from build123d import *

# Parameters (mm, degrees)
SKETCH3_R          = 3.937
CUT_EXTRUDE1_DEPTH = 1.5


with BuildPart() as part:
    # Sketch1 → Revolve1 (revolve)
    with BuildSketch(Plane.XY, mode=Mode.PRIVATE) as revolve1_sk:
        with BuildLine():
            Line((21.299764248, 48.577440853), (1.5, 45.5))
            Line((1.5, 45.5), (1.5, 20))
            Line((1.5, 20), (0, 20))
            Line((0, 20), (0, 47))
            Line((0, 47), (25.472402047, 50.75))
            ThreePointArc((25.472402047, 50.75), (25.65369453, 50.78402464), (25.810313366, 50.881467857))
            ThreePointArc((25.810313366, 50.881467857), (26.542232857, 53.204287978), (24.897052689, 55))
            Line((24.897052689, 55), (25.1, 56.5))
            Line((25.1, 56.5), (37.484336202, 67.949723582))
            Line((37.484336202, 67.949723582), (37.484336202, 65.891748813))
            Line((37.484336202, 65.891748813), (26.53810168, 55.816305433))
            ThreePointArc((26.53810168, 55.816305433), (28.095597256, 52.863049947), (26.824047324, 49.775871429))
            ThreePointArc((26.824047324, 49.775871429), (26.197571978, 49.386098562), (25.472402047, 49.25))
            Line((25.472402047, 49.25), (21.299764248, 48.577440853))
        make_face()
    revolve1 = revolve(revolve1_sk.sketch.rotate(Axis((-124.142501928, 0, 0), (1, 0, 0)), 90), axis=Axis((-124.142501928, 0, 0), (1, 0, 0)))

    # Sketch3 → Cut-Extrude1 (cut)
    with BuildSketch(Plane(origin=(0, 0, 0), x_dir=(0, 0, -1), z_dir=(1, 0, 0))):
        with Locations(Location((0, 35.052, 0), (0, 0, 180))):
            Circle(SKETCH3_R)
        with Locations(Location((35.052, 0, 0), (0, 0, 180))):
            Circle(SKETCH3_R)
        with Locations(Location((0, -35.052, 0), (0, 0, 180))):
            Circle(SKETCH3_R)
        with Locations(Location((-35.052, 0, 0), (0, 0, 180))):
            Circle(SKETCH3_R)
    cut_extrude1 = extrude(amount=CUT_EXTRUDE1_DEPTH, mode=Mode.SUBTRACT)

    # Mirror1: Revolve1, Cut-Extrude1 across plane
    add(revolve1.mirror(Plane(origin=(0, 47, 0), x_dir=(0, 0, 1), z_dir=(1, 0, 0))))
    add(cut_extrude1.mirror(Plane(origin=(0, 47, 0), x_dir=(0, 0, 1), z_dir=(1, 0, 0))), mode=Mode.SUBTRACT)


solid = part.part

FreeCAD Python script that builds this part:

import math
import FreeCAD as App
import Part
import Sketcher
from FreeCAD import Vector

doc = App.newDocument("Part")
params = doc.addObject("Spreadsheet::Sheet", "Params")
for row, (alias, value) in enumerate([
    ("sketch1_radius", "2 mm"),
    ("sketch1_radius2", "0.5 mm"),
    ("sketch1_height", "27 mm"),
    ("sketch1_width", "1.5 mm"),
    ("sketch1_height2", "25.5 mm"),
    ("revolution_angle", "360 deg"),
    ("pocket1_length", "1.5 mm"),
], start=1):
    params.set(f"A{row}", alias)
    params.set(f"B{row}", "=" + value)
    params.setAlias(f"B{row}", alias)

body = doc.addObject("PartDesign::Body", "Body")

sketch1 = doc.addObject("Sketcher::SketchObject", "Sketch")
body.addObject(sketch1)
sketch1.AttachmentSupport = (doc.XY_Plane, [""])
sketch1.MapMode = "FlatFace"
sketch1.addGeometry(Part.LineSegment(Vector(1.5, 45.5, 0), Vector(21.3, 48.58, 0)), False)
sketch1.addGeometry(Part.LineSegment(Vector(21.3, 48.58, 0), Vector(25.47, 49.25, 0)), False)
sketch1.addGeometry(Part.ArcOfCircle(Part.Circle(Vector(25.47, 51.25, 0), Vector(0, 0, 1), 2), math.radians(-90), math.radians(-47)), False)
sketch1.addGeometry(Part.ArcOfCircle(Part.Circle(Vector(24.16, 52.68, 0), Vector(0, 0, 1), 3.94), math.radians(-47), math.radians(53)), False)
sketch1.addGeometry(Part.LineSegment(Vector(26.54, 55.82, 0), Vector(37.48, 65.89, 0)), False)
sketch1.addGeometry(Part.LineSegment(Vector(37.48, 65.89, 0), Vector(37.48, 67.95, 0)), False)
sketch1.addGeometry(Part.LineSegment(Vector(37.48, 67.95, 0), Vector(25.1, 56.5, 0)), False)
sketch1.addGeometry(Part.LineSegment(Vector(25.1, 56.5, 0), Vector(24.9, 55, 0)), False)
sketch1.addGeometry(Part.ArcOfCircle(Part.Circle(Vector(24.16, 52.68, 0), Vector(0, 0, 1), 2.44), math.radians(-47), math.radians(72)), False)
sketch1.addGeometry(Part.ArcOfCircle(Part.Circle(Vector(25.47, 51.25, 0), Vector(0, 0, 1), 0.5), math.radians(-90), math.radians(-47)), False)
sketch1.addGeometry(Part.LineSegment(Vector(25.47, 50.75, 0), Vector(0, 47, 0)), False)
sketch1.addGeometry(Part.LineSegment(Vector(0, 47, 0), Vector(0, 20, 0)), False)
sketch1.addGeometry(Part.LineSegment(Vector(0, 20, 0), Vector(1.5, 20, 0)), False)
sketch1.addGeometry(Part.LineSegment(Vector(1.5, 20, 0), Vector(1.5, 45.5, 0)), False)
sketch1.addConstraint(Sketcher.Constraint("Coincident", 0, 2, 1, 1))
sketch1.addConstraint(Sketcher.Constraint("Coincident", 1, 2, 2, 1))
sketch1.addConstraint(Sketcher.Constraint("Tangent", 2, 2, 3, 1))
sketch1.addConstraint(Sketcher.Constraint("Coincident", 3, 2, 4, 1))
sketch1.addConstraint(Sketcher.Constraint("Coincident", 4, 2, 5, 1))
sketch1.addConstraint(Sketcher.Constraint("Coincident", 5, 2, 6, 1))
sketch1.addConstraint(Sketcher.Constraint("Coincident", 6, 2, 7, 1))
sketch1.addConstraint(Sketcher.Constraint("Coincident", 7, 2, 8, 2))
sketch1.addConstraint(Sketcher.Constraint("Tangent", 8, 1, 9, 2))
sketch1.addConstraint(Sketcher.Constraint("Coincident", 9, 1, 10, 1))
sketch1.addConstraint(Sketcher.Constraint("Coincident", 10, 2, 11, 1))
sketch1.addConstraint(Sketcher.Constraint("Coincident", 11, 2, 12, 1))
sketch1.addConstraint(Sketcher.Constraint("Coincident", 12, 2, 13, 1))
sketch1.addConstraint(Sketcher.Constraint("Coincident", 13, 2, 0, 1))
sketch1.addConstraint(Sketcher.Constraint("Vertical", 5))
sketch1.addConstraint(Sketcher.Constraint("Vertical", 11))
sketch1.addConstraint(Sketcher.Constraint("Horizontal", 12))
sketch1.addConstraint(Sketcher.Constraint("Vertical", 13))
sketch1.addConstraint(Sketcher.Constraint("Coincident", 8, 3, 3, 3))
sketch1.addConstraint(Sketcher.Constraint("Coincident", 9, 3, 2, 3))
sketch1.addConstraint(Sketcher.Constraint("PointOnObject", 10, 2, -2))
sketch1.addConstraint(Sketcher.Constraint("Vertical", 9, 3, 1, 2))
sketch1.addConstraint(Sketcher.Constraint("Vertical", 1, 2, 9, 1))
sketch1.addConstraint(Sketcher.Constraint("Radius", 2, 2.0))
sketch1.addConstraint(Sketcher.Constraint("Radius", 9, 0.5))
sketch1.addConstraint(Sketcher.Constraint("DistanceY", 11, 2, 11, 1, 27.0))
sketch1.addConstraint(Sketcher.Constraint("DistanceX", 12, 1, 12, 2, 1.5))
sketch1.addConstraint(Sketcher.Constraint("DistanceY", 13, 1, 13, 2, 25.5))
sketch1.addConstraint(Sketcher.Constraint("DistanceY", -1, 1, 7, 2, 55.0))
sketch1.addConstraint(Sketcher.Constraint("DistanceY", -1, 1, 10, 2, 47.0))
sketch1.addConstraint(Sketcher.Constraint("DistanceX", -1, 1, 6, 2, 25.1))
sketch1.addConstraint(Sketcher.Constraint("DistanceY", -1, 1, 6, 2, 56.5))
sketch1.addConstraint(Sketcher.Constraint("DistanceY", -1, 1, 2, 3, 51.25))
sketch1.addConstraint(Sketcher.Constraint("Radius", 3, 3.935971))
sketch1.addConstraint(Sketcher.Constraint("DistanceX", -1, 1, 3, 2, 26.538102))
sketch1.addConstraint(Sketcher.Constraint("DistanceX", 2, 3, 3, 2, 1.0657))
sketch1.addConstraint(Sketcher.Constraint("Distance", 4, 14.877319))
sketch1.addConstraint(Sketcher.Constraint("DistanceY", 5, 1, 5, 2, 2.057975))
sketch1.addConstraint(Sketcher.Constraint("DistanceX", -1, 1, 3, 3, 24.164029))
sketch1.addConstraint(Sketcher.Constraint("DistanceY", -1, 1, 0, 2, 48.577441))
sketch1.addConstraint(Sketcher.Constraint("DistanceY", -1, 1, 4, 2, 65.891749))
sketch1.addConstraint(Sketcher.Constraint("Distance", 0, 20.037498))
sketch1.setExpression("Constraints[23]", "Params.sketch1_radius")
sketch1.setExpression("Constraints[24]", "Params.sketch1_radius2")
sketch1.setExpression("Constraints[25]", "Params.sketch1_height")
sketch1.setExpression("Constraints[26]", "Params.sketch1_width")
sketch1.setExpression("Constraints[27]", "Params.sketch1_height2")
revolution = doc.addObject("PartDesign::Revolution", "Revolution")
body.addObject(revolution)
revolution.Profile = sketch1
revolution.ReferenceAxis = (sketch1, ["H_Axis"])
revolution.setExpression("Angle", "Params.revolution_angle")

sketch2 = doc.addObject("Sketcher::SketchObject", "Sketch001")
body.addObject(sketch2)
sketch2.AttachmentSupport = (doc.YZ_Plane, [""])
sketch2.MapMode = "FlatFace"
sketch2.addGeometry(Part.Circle(Vector(35.1, 0, 0), Vector(0, 0, 1), 3.9), False)
sketch2.addGeometry(Part.Circle(Vector(0, -35.1, 0), Vector(0, 0, 1), 3.9), False)
sketch2.addGeometry(Part.Circle(Vector(-35.1, 0, 0), Vector(0, 0, 1), 3.9), False)
sketch2.addGeometry(Part.Circle(Vector(0, 35.1, 0), Vector(0, 0, 1), 3.9), False)
sketch2.addConstraint(Sketcher.Constraint("Equal", 0, 1))
sketch2.addConstraint(Sketcher.Constraint("Equal", 1, 2))
sketch2.addConstraint(Sketcher.Constraint("Equal", 2, 3))
sketch2.addConstraint(Sketcher.Constraint("Symmetric", 0, 3, 2, 3, -1, 1))
sketch2.addConstraint(Sketcher.Constraint("Symmetric", 1, 3, 3, 3, -1, 1))
sketch2.addConstraint(Sketcher.Constraint("PointOnObject", 0, 3, -1))
sketch2.addConstraint(Sketcher.Constraint("PointOnObject", 1, 3, -2))
sketch2.addConstraint(Sketcher.Constraint("Diameter", 0, 7.874))
sketch2.addConstraint(Sketcher.Constraint("DistanceX", -1, 1, 0, 3, 35.052))
sketch2.addConstraint(Sketcher.Constraint("DistanceY", 1, 3, -1, 1, 35.052))
pocket1 = doc.addObject("PartDesign::Pocket", "Pocket")
body.addObject(pocket1)
pocket1.Profile = sketch2
pocket1.setExpression("Length", "Params.pocket1_length")
pocket1.Reversed = True
doc.recompute()

mirrored = doc.addObject("PartDesign::Mirrored", "Mirrored")
body.addObject(mirrored)
mirrored.Originals = [revolution, pocket1]
mirrored.MirrorPlane = (doc.YZ_Plane, [""])
body.Tip = mirrored

doc.recompute()
